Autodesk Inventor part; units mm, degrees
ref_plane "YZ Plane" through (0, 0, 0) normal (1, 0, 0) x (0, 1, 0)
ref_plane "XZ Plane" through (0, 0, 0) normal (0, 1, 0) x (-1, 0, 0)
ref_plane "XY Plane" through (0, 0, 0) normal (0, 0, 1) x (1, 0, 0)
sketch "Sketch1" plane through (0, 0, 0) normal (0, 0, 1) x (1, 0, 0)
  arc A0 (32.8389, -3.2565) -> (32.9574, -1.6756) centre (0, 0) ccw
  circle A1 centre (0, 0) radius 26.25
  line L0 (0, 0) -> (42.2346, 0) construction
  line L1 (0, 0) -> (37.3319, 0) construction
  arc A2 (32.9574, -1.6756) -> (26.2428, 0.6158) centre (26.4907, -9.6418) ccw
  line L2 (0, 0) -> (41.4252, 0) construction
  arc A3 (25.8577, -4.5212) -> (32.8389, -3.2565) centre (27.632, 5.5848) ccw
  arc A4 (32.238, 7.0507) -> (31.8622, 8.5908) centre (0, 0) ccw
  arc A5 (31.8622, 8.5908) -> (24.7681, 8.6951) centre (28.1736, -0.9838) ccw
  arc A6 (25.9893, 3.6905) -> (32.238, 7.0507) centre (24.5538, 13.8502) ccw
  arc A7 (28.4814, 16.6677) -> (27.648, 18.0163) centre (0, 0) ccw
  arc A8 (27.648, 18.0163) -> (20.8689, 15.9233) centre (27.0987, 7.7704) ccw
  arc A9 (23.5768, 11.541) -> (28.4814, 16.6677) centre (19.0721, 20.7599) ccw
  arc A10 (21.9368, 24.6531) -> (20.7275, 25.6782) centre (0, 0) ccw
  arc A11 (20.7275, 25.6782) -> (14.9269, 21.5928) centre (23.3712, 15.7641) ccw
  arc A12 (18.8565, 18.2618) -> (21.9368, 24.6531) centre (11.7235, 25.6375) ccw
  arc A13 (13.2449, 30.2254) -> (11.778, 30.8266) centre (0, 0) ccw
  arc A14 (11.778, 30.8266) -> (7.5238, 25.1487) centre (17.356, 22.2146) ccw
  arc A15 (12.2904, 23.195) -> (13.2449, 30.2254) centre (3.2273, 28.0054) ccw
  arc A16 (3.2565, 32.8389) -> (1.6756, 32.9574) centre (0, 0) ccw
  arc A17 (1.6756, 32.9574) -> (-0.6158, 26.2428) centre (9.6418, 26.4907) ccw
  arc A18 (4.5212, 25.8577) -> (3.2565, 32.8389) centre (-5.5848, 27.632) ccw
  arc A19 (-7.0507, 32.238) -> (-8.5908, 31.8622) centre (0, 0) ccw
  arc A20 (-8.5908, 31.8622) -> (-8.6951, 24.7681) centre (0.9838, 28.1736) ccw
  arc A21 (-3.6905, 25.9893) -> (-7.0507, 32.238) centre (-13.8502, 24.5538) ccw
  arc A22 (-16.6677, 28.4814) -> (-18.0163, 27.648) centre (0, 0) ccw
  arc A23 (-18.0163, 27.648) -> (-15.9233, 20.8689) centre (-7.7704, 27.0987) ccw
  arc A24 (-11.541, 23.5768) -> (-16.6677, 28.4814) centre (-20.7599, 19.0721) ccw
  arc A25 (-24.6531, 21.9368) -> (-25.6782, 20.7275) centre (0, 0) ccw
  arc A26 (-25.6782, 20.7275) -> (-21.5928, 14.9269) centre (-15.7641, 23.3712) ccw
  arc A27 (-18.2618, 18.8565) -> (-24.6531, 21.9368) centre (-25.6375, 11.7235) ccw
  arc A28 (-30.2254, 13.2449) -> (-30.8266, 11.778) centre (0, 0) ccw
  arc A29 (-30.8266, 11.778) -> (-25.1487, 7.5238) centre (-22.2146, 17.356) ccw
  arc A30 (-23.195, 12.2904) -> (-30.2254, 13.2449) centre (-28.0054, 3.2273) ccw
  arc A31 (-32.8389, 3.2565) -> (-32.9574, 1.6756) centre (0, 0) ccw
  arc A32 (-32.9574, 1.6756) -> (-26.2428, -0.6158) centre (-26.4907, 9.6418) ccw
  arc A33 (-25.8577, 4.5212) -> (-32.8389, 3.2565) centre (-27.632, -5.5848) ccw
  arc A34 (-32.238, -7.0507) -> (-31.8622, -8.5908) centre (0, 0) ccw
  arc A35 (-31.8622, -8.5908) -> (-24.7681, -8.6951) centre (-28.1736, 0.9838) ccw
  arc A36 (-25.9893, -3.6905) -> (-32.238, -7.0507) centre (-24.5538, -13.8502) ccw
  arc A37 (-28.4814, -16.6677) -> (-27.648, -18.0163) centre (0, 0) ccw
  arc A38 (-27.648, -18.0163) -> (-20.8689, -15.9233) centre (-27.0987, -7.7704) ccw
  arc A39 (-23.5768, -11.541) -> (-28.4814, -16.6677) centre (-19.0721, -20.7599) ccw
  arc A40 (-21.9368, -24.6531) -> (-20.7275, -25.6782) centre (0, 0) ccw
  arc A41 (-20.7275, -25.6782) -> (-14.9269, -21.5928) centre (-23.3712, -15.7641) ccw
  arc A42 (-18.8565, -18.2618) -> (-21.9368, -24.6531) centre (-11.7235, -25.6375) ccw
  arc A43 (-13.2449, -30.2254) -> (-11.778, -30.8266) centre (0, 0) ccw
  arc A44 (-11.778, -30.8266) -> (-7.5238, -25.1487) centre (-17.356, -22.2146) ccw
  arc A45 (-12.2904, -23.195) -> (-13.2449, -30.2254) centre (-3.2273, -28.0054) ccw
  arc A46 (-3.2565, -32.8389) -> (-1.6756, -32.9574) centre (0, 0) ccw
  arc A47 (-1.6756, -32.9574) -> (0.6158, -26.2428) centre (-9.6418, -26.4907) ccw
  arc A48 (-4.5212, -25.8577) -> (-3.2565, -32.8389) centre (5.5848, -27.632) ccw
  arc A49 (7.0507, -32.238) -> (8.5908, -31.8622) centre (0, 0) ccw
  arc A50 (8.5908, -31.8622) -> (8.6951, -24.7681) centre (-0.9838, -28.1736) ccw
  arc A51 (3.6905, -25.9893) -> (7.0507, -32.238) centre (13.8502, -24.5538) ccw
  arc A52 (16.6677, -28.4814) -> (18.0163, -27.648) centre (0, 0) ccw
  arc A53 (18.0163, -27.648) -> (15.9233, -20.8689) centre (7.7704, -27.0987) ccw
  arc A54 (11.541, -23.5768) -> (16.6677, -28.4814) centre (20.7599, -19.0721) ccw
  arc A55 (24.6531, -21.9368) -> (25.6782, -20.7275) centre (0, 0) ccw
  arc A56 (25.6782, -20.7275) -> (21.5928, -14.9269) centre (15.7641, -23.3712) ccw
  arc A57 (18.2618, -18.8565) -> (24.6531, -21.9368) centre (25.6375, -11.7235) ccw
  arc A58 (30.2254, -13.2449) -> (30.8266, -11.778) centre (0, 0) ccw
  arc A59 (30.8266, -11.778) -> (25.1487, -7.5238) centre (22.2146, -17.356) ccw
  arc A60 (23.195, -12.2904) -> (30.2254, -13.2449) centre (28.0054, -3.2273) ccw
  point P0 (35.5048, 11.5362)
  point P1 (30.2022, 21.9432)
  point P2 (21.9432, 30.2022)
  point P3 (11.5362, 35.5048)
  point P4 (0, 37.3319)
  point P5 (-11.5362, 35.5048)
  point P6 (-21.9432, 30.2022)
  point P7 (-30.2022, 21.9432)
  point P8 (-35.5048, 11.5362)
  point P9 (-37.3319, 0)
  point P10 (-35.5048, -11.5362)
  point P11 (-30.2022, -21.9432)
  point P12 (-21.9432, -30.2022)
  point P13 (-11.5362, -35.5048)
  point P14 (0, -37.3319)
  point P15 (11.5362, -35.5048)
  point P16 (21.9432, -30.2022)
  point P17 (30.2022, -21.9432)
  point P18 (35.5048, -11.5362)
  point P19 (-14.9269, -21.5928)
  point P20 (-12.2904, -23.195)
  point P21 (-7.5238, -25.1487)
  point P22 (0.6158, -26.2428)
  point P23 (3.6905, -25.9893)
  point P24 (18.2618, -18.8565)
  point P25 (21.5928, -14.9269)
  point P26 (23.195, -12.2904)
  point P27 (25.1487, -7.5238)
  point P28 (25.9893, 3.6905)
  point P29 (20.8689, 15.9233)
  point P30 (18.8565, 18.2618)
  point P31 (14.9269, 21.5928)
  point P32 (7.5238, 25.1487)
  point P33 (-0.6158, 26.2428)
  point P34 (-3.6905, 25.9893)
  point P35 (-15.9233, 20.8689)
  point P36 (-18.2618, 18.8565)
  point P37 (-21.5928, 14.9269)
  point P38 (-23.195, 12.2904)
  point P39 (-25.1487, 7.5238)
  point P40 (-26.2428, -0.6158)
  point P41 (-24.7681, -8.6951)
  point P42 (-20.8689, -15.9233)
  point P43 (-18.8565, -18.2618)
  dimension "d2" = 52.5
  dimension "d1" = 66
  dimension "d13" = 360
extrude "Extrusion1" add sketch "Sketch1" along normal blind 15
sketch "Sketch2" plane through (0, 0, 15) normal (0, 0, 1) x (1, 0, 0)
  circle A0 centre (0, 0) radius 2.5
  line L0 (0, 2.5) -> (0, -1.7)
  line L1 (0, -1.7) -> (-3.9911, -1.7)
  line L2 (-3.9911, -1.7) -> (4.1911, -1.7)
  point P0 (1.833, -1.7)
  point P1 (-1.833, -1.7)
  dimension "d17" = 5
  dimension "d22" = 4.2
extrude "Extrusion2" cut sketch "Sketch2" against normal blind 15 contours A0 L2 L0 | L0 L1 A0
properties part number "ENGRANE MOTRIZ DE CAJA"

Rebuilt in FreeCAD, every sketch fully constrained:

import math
import FreeCAD as App
import Part
import Sketcher

doc = App.newDocument("Part")
body = doc.addObject("PartDesign::Body", "Body")

sketch1 = doc.addObject("Sketcher::SketchObject", "Sketch")
body.addObject(sketch1)
sketch1.AttachmentSupport = (doc.XY_Plane, [""])
sketch1.MapMode = "FlatFace"
sketch1.addGeometry([
    Part.ArcOfCircle(Part.Circle(App.Vector(27.632, 5.5848, 0), App.Vector(0, 0, 1), 10.260574), math.radians(-99.957873), math.radians(-59.504925)),
    Part.ArcOfCircle(Part.Circle(App.Vector(0.007724, -0.000672, 0), App.Vector(0, 0, 1), 32.992219), math.radians(-5.663435), math.radians(-2.910006)),
    Part.ArcOfCircle(Part.Circle(App.Vector(26.4907, -9.6418, 0), App.Vector(0, 0, 1), 10.260534), math.radians(50.93144), math.radians(91.384423)),
    Part.ArcOfCircle(Part.Circle(App.Vector(0, 0, 0), App.Vector(0, 0, 1), 26.25), math.radians(1.344227), math.radians(8.08201)),
    Part.ArcOfCircle(Part.Circle(App.Vector(24.5538, 13.8502, 0), App.Vector(0, 0, 1), 10.260612), math.radians(-81.957713), math.radians(-41.504576)),
    Part.ArcOfCircle(Part.Circle(App.Vector(-0.015844, -0.003665, 0), App.Vector(0, 0, 1), 33.016277), math.radians(12.337115), math.radians(15.088454)),
    Part.ArcOfCircle(Part.Circle(App.Vector(28.1736, -0.9838, 0), App.Vector(0, 0, 1), 10.260543), math.radians(68.930897), math.radians(109.384311)),
    Part.ArcOfCircle(Part.Circle(App.Vector(0, 0, 0), App.Vector(0, 0, 1), 26.25), math.radians(19.344156), math.radians(26.082055)),
    Part.ArcOfCircle(Part.Circle(App.Vector(19.0721, 20.7599, 0), App.Vector(0, 0, 1), 10.260626), math.radians(-63.958132), math.radians(-23.504711)),
    Part.ArcOfCircle(Part.Circle(App.Vector(0.076291, 0.045886, 0), App.Vector(0, 0, 1), 32.911015), math.radians(30.334886), math.radians(33.095105)),
    Part.ArcOfCircle(Part.Circle(App.Vector(27.0987, 7.7704, 0), App.Vector(0, 0, 1), 10.260614), math.radians(86.931214), math.radians(127.384196)),
    Part.ArcOfCircle(Part.Circle(App.Vector(0, 0, 0), App.Vector(0, 0, 1), 26.25), math.radians(37.344203), math.radians(44.0821)),
    Part.ArcOfCircle(Part.Circle(App.Vector(11.7235, 25.6375, 0), App.Vector(0, 0, 1), 10.260635), math.radians(-45.958348), math.radians(-5.505397)),
    Part.ArcOfCircle(Part.Circle(App.Vector(-0.011674, -0.013442, 0), App.Vector(0, 0, 1), 33.01778), math.radians(48.337072), math.radians(51.088341)),
    Part.ArcOfCircle(Part.Circle(App.Vector(23.3712, 15.7641, 0), App.Vector(0, 0, 1), 10.260533), math.radians(104.931093), math.radians(145.384521)),
    Part.ArcOfCircle(Part.Circle(App.Vector(0, 0, 0), App.Vector(0, 0, 1), 26.25), math.radians(55.344259), math.radians(62.0821)),
    Part.ArcOfCircle(Part.Circle(App.Vector(3.2273, 28.0054, 0), App.Vector(0, 0, 1), 10.260591), math.radians(-27.957915), math.radians(12.495375)),
    Part.ArcOfCircle(Part.Circle(App.Vector(0.016681, 0.039347, 0), App.Vector(0, 0, 1), 32.957299), math.radians(66.335869), math.radians(69.092189)),
    Part.ArcOfCircle(Part.Circle(App.Vector(17.356, 22.2146, 0), App.Vector(0, 0, 1), 10.260635), math.radians(122.931166), math.radians(163.383979)),
    Part.ArcOfCircle(Part.Circle(App.Vector(0, 0, 0), App.Vector(0, 0, 1), 26.25), math.radians(73.344262), math.radians(80.082134)),
    Part.ArcOfCircle(Part.Circle(App.Vector(-5.5848, 27.632, 0), App.Vector(0, 0, 1), 10.260574), math.radians(-9.957873), math.radians(30.495075)),
    Part.ArcOfCircle(Part.Circle(App.Vector(0.000672, 0.007724, 0), App.Vector(0, 0, 1), 32.992219), math.radians(84.336565), math.radians(87.089994)),
    Part.ArcOfCircle(Part.Circle(App.Vector(9.6418, 26.4907, 0), App.Vector(0, 0, 1), 10.260534), math.radians(140.93144), math.radians(181.384423)),
    Part.ArcOfCircle(Part.Circle(App.Vector(0, 0, 0), App.Vector(0, 0, 1), 26.25), math.radians(91.344227), math.radians(98.08201)),
    Part.ArcOfCircle(Part.Circle(App.Vector(-13.8502, 24.5538, 0), App.Vector(0, 0, 1), 10.260612), math.radians(8.042287), math.radians(48.495424)),
    Part.ArcOfCircle(Part.Circle(App.Vector(0.003665, -0.015844, 0), App.Vector(0, 0, 1), 33.016277), math.radians(102.337115), math.radians(105.088454)),
    Part.ArcOfCircle(Part.Circle(App.Vector(0.9838, 28.1736, 0), App.Vector(0, 0, 1), 10.260543), math.radians(158.930897), math.radians(199.384311)),
    Part.ArcOfCircle(Part.Circle(App.Vector(0, 0, 0), App.Vector(0, 0, 1), 26.25), math.radians(109.344156), math.radians(116.082055)),
    Part.ArcOfCircle(Part.Circle(App.Vector(-20.7599, 19.0721, 0), App.Vector(0, 0, 1), 10.260626), math.radians(26.041868), math.radians(66.495289)),
    Part.ArcOfCircle(Part.Circle(App.Vector(-0.045886, 0.076291, 0), App.Vector(0, 0, 1), 32.911015), math.radians(120.334886), math.radians(123.095105)),
    Part.ArcOfCircle(Part.Circle(App.Vector(-7.7704, 27.0987, 0), App.Vector(0, 0, 1), 10.260614), math.radians(176.931214), math.radians(217.384196)),
    Part.ArcOfCircle(Part.Circle(App.Vector(0, 0, 0), App.Vector(0, 0, 1), 26.25), math.radians(127.344203), math.radians(134.0821)),
    Part.ArcOfCircle(Part.Circle(App.Vector(-25.6375, 11.7235, 0), App.Vector(0, 0, 1), 10.260635), math.radians(44.041652), math.radians(84.494603)),
    Part.ArcOfCircle(Part.Circle(App.Vector(0.013442, -0.011674, 0), App.Vector(0, 0, 1), 33.01778), math.radians(138.337072), math.radians(141.088341)),
    Part.ArcOfCircle(Part.Circle(App.Vector(-15.7641, 23.3712, 0), App.Vector(0, 0, 1), 10.260533), math.radians(-165.068907), math.radians(-124.615479)),
    Part.ArcOfCircle(Part.Circle(App.Vector(0, 0, 0), App.Vector(0, 0, 1), 26.25), math.radians(145.344259), math.radians(152.0821)),
    Part.ArcOfCircle(Part.Circle(App.Vector(-28.0054, 3.2273, 0), App.Vector(0, 0, 1), 10.260591), math.radians(62.042085), math.radians(102.495375)),
    Part.ArcOfCircle(Part.Circle(App.Vector(-0.039347, 0.016681, 0), App.Vector(0, 0, 1), 32.957299), math.radians(156.335869), math.radians(159.092189)),
    Part.ArcOfCircle(Part.Circle(App.Vector(-22.2146, 17.356, 0), App.Vector(0, 0, 1), 10.260635), math.radians(-147.068834), math.radians(-106.616021)),
    Part.ArcOfCircle(Part.Circle(App.Vector(0, 0, 0), App.Vector(0, 0, 1), 26.25), math.radians(163.344262), math.radians(170.082134)),
    Part.ArcOfCircle(Part.Circle(App.Vector(-27.632, -5.5848, 0), App.Vector(0, 0, 1), 10.260574), math.radians(80.042127), math.radians(120.495075)),
    Part.ArcOfCircle(Part.Circle(App.Vector(-0.007724, 0.000672, 0), App.Vector(0, 0, 1), 32.992219), math.radians(174.336565), math.radians(177.089994)),
    Part.ArcOfCircle(Part.Circle(App.Vector(-26.4907, 9.6418, 0), App.Vector(0, 0, 1), 10.260534), math.radians(-129.06856), math.radians(-88.615577)),
    Part.ArcOfCircle(Part.Circle(App.Vector(0, 0, 0), App.Vector(0, 0, 1), 26.25), math.radians(-178.655773), math.radians(-171.91799)),
    Part.ArcOfCircle(Part.Circle(App.Vector(-24.5538, -13.8502, 0), App.Vector(0, 0, 1), 10.260612), math.radians(98.042287), math.radians(138.495424)),
    Part.ArcOfCircle(Part.Circle(App.Vector(0.015844, 0.003665, 0), App.Vector(0, 0, 1), 33.016277), math.radians(-167.662885), math.radians(-164.911546)),
    Part.ArcOfCircle(Part.Circle(App.Vector(-28.1736, 0.9838, 0), App.Vector(0, 0, 1), 10.260543), math.radians(-111.069103), math.radians(-70.615689)),
    Part.ArcOfCircle(Part.Circle(App.Vector(0, 0, 0), App.Vector(0, 0, 1), 26.25), math.radians(-160.655844), math.radians(-153.917945)),
    Part.ArcOfCircle(Part.Circle(App.Vector(-19.0721, -20.7599, 0), App.Vector(0, 0, 1), 10.260626), math.radians(116.041868), math.radians(156.495289)),
    Part.ArcOfCircle(Part.Circle(App.Vector(-0.076291, -0.045886, 0), App.Vector(0, 0, 1), 32.911015), math.radians(-149.665114), math.radians(-146.904895)),
    Part.ArcOfCircle(Part.Circle(App.Vector(-27.0987, -7.7704, 0), App.Vector(0, 0, 1), 10.260614), math.radians(-93.068786), math.radians(-52.615804)),
    Part.ArcOfCircle(Part.Circle(App.Vector(0, 0, 0), App.Vector(0, 0, 1), 26.25), math.radians(-142.655797), math.radians(-135.9179)),
    Part.ArcOfCircle(Part.Circle(App.Vector(-11.7235, -25.6375, 0), App.Vector(0, 0, 1), 10.260635), math.radians(134.041652), math.radians(174.494603)),
    Part.ArcOfCircle(Part.Circle(App.Vector(0.011674, 0.013442, 0), App.Vector(0, 0, 1), 33.01778), math.radians(-131.662928), math.radians(-128.911659)),
    Part.ArcOfCircle(Part.Circle(App.Vector(-23.3712, -15.7641, 0), App.Vector(0, 0, 1), 10.260533), math.radians(-75.068907), math.radians(-34.615479)),
    Part.ArcOfCircle(Part.Circle(App.Vector(0, 0, 0), App.Vector(0, 0, 1), 26.25), math.radians(-124.655741), math.radians(-117.9179)),
    Part.ArcOfCircle(Part.Circle(App.Vector(-3.2273, -28.0054, 0), App.Vector(0, 0, 1), 10.260591), math.radians(152.042085), math.radians(192.495375)),
    Part.ArcOfCircle(Part.Circle(App.Vector(-0.016681, -0.039347, 0), App.Vector(0, 0, 1), 32.957299), math.radians(-113.664131), math.radians(-110.907811)),
    Part.ArcOfCircle(Part.Circle(App.Vector(-17.356, -22.2146, 0), App.Vector(0, 0, 1), 10.260635), math.radians(-57.068834), math.radians(-16.616021)),
    Part.ArcOfCircle(Part.Circle(App.Vector(0, 0, 0), App.Vector(0, 0, 1), 26.25), math.radians(-106.655738), math.radians(-99.917866)),
    Part.ArcOfCircle(Part.Circle(App.Vector(5.5848, -27.632, 0), App.Vector(0, 0, 1), 10.260574), math.radians(170.042127), math.radians(210.495075)),
    Part.ArcOfCircle(Part.Circle(App.Vector(-0.000672, -0.007724, 0), App.Vector(0, 0, 1), 32.992219), math.radians(-95.663435), math.radians(-92.910006)),
    Part.ArcOfCircle(Part.Circle(App.Vector(-9.6418, -26.4907, 0), App.Vector(0, 0, 1), 10.260534), math.radians(-39.06856), math.radians(1.384423)),
    Part.ArcOfCircle(Part.Circle(App.Vector(0, 0, 0), App.Vector(0, 0, 1), 26.25), math.radians(-88.655773), math.radians(-81.91799)),
    Part.ArcOfCircle(Part.Circle(App.Vector(13.8502, -24.5538, 0), App.Vector(0, 0, 1), 10.260612), math.radians(-171.957713), math.radians(-131.504576)),
    Part.ArcOfCircle(Part.Circle(App.Vector(-0.003665, 0.015844, 0), App.Vector(0, 0, 1), 33.016277), math.radians(-77.662885), math.radians(-74.911546)),
    Part.ArcOfCircle(Part.Circle(App.Vector(-0.9838, -28.1736, 0), App.Vector(0, 0, 1), 10.260543), math.radians(-21.069103), math.radians(19.384311)),
    Part.ArcOfCircle(Part.Circle(App.Vector(0, 0, 0), App.Vector(0, 0, 1), 26.25), math.radians(-70.655844), math.radians(-63.917945)),
    Part.ArcOfCircle(Part.Circle(App.Vector(20.7599, -19.0721, 0), App.Vector(0, 0, 1), 10.260626), math.radians(-153.958132), math.radians(-113.504711)),
    Part.ArcOfCircle(Part.Circle(App.Vector(0.045886, -0.076291, 0), App.Vector(0, 0, 1), 32.911015), math.radians(-59.665114), math.radians(-56.904895)),
    Part.ArcOfCircle(Part.Circle(App.Vector(7.7704, -27.0987, 0), App.Vector(0, 0, 1), 10.260614), math.radians(-3.068786), math.radians(37.384196)),
    Part.ArcOfCircle(Part.Circle(App.Vector(0, 0, 0), App.Vector(0, 0, 1), 26.25), math.radians(-52.655797), math.radians(-45.9179)),
    Part.ArcOfCircle(Part.Circle(App.Vector(25.6375, -11.7235, 0), App.Vector(0, 0, 1), 10.260635), math.radians(-135.958348), math.radians(-95.505397)),
    Part.ArcOfCircle(Part.Circle(App.Vector(-0.013442, 0.011674, 0), App.Vector(0, 0, 1), 33.01778), math.radians(-41.662928), math.radians(-38.911659)),
    Part.ArcOfCircle(Part.Circle(App.Vector(15.7641, -23.3712, 0), App.Vector(0, 0, 1), 10.260533), math.radians(14.931093), math.radians(55.384521)),
    Part.ArcOfCircle(Part.Circle(App.Vector(0, 0, 0), App.Vector(0, 0, 1), 26.25), math.radians(-34.655741), math.radians(-27.9179)),
    Part.ArcOfCircle(Part.Circle(App.Vector(28.0054, -3.2273, 0), App.Vector(0, 0, 1), 10.260591), math.radians(-117.957915), math.radians(-77.504625)),
    Part.ArcOfCircle(Part.Circle(App.Vector(0.039347, -0.016681, 0), App.Vector(0, 0, 1), 32.957299), math.radians(-23.664131), math.radians(-20.907811)),
    Part.ArcOfCircle(Part.Circle(App.Vector(22.2146, -17.356, 0), App.Vector(0, 0, 1), 10.260635), math.radians(32.931166), math.radians(73.383979)),
    Part.ArcOfCircle(Part.Circle(App.Vector(0, 0, 0), App.Vector(0, 0, 1), 26.25), math.radians(-16.655738), math.radians(-9.917866)),
], False)
sketch1.addConstraint([
    Sketcher.Constraint("Coincident", 0, 2, 1, 1),
    Sketcher.Constraint("Coincident", 1, 2, 2, 1),
    Sketcher.Constraint("Coincident", 2, 2, 3, 1),
    Sketcher.Constraint("Coincident", 3, 2, 4, 1),
    Sketcher.Constraint("Coincident", 4, 2, 5, 1),
    Sketcher.Constraint("Coincident", 5, 2, 6, 1),
    Sketcher.Constraint("Coincident", 6, 2, 7, 1),
    Sketcher.Constraint("Coincident", 7, 2, 8, 1),
    Sketcher.Constraint("Coincident", 8, 2, 9, 1),
    Sketcher.Constraint("Coincident", 9, 2, 10, 1),
    Sketcher.Constraint("Coincident", 10, 2, 11, 1),
    Sketcher.Constraint("Coincident", 11, 2, 12, 1),
    Sketcher.Constraint("Coincident", 12, 2, 13, 1),
    Sketcher.Constraint("Coincident", 13, 2, 14, 1),
    Sketcher.Constraint("Coincident", 14, 2, 15, 1),
    Sketcher.Constraint("Coincident", 15, 2, 16, 1),
    Sketcher.Constraint("Coincident", 16, 2, 17, 1),
    Sketcher.Constraint("Coincident", 17, 2, 18, 1),
    Sketcher.Constraint("Coincident", 18, 2, 19, 1),
    Sketcher.Constraint("Coincident", 19, 2, 20, 1),
    Sketcher.Constraint("Coincident", 20, 2, 21, 1),
    Sketcher.Constraint("Coincident", 21, 2, 22, 1),
    Sketcher.Constraint("Coincident", 22, 2, 23, 1),
    Sketcher.Constraint("Coincident", 23, 2, 24, 1),
    Sketcher.Constraint("Coincident", 24, 2, 25, 1),
    Sketcher.Constraint("Coincident", 25, 2, 26, 1),
    Sketcher.Constraint("Coincident", 26, 2, 27, 1),
    Sketcher.Constraint("Coincident", 27, 2, 28, 1),
    Sketcher.Constraint("Coincident", 28, 2, 29, 1),
    Sketcher.Constraint("Coincident", 29, 2, 30, 1),
    Sketcher.Constraint("Coincident", 30, 2, 31, 1),
    Sketcher.Constraint("Coincident", 31, 2, 32, 1),
    Sketcher.Constraint("Coincident", 32, 2, 33, 1),
    Sketcher.Constraint("Coincident", 33, 2, 34, 1),
    Sketcher.Constraint("Coincident", 34, 2, 35, 1),
    Sketcher.Constraint("Coincident", 35, 2, 36, 1),
    Sketcher.Constraint("Coincident", 36, 2, 37, 1),
    Sketcher.Constraint("Coincident", 37, 2, 38, 1),
    Sketcher.Constraint("Coincident", 38, 2, 39, 1),
    Sketcher.Constraint("Coincident", 39, 2, 40, 1),
    Sketcher.Constraint("Coincident", 40, 2, 41, 1),
    Sketcher.Constraint("Coincident", 41, 2, 42, 1),
    Sketcher.Constraint("Coincident", 42, 2, 43, 1),
    Sketcher.Constraint("Coincident", 43, 2, 44, 1),
    Sketcher.Constraint("Coincident", 44, 2, 45, 1),
    Sketcher.Constraint("Coincident", 45, 2, 46, 1),
    Sketcher.Constraint("Coincident", 46, 2, 47, 1),
    Sketcher.Constraint("Coincident", 47, 2, 48, 1),
    Sketcher.Constraint("Coincident", 48, 2, 49, 1),
    Sketcher.Constraint("Coincident", 49, 2, 50, 1),
    Sketcher.Constraint("Coincident", 50, 2, 51, 1),
    Sketcher.Constraint("Coincident", 51, 2, 52, 1),
    Sketcher.Constraint("Coincident", 52, 2, 53, 1),
    Sketcher.Constraint("Coincident", 53, 2, 54, 1),
    Sketcher.Constraint("Coincident", 54, 2, 55, 1),
    Sketcher.Constraint("Coincident", 55, 2, 56, 1),
    Sketcher.Constraint("Coincident", 56, 2, 57, 1),
    Sketcher.Constraint("Coincident", 57, 2, 58, 1),
    Sketcher.Constraint("Coincident", 58, 2, 59, 1),
    Sketcher.Constraint("Coincident", 59, 2, 60, 1),
    Sketcher.Constraint("Coincident", 60, 2, 61, 1),
    Sketcher.Constraint("Coincident", 61, 2, 62, 1),
    Sketcher.Constraint("Coincident", 62, 2, 63, 1),
    Sketcher.Constraint("Coincident", 63, 2, 64, 1),
    Sketcher.Constraint("Coincident", 64, 2, 65, 1),
    Sketcher.Constraint("Coincident", 65, 2, 66, 1),
    Sketcher.Constraint("Coincident", 66, 2, 67, 1),
    Sketcher.Constraint("Coincident", 67, 2, 68, 1),
    Sketcher.Constraint("Coincident", 68, 2, 69, 1),
    Sketcher.Constraint("Coincident", 69, 2, 70, 1),
    Sketcher.Constraint("Coincident", 70, 2, 71, 1),
    Sketcher.Constraint("Coincident", 71, 2, 72, 1),
    Sketcher.Constraint("Coincident", 72, 2, 73, 1),
    Sketcher.Constraint("Coincident", 73, 2, 74, 1),
    Sketcher.Constraint("Coincident", 74, 2, 75, 1),
    Sketcher.Constraint("Coincident", 75, 2, 76, 1),
    Sketcher.Constraint("Coincident", 76, 2, 77, 1),
    Sketcher.Constraint("Coincident", 77, 2, 78, 1),
    Sketcher.Constraint("Coincident", 78, 2, 79, 1),
    Sketcher.Constraint("Coincident", 79, 2, 0, 1),
    Sketcher.Constraint("Coincident", 3, 3, -1, 1),
    Sketcher.Constraint("Coincident", 7, 3, -1, 1),
    Sketcher.Constraint("Coincident", 11, 3, -1, 1),
    Sketcher.Constraint("Coincident", 15, 3, -1, 1),
    Sketcher.Constraint("Coincident", 19, 3, -1, 1),
    Sketcher.Constraint("Coincident", 23, 3, -1, 1),
    Sketcher.Constraint("Coincident", 27, 3, -1, 1),
    Sketcher.Constraint("Coincident", 31, 3, -1, 1),
    Sketcher.Constraint("Coincident", 35, 3, -1, 1),
    Sketcher.Constraint("Coincident", 39, 3, -1, 1),
    Sketcher.Constraint("Coincident", 43, 3, -1, 1),
    Sketcher.Constraint("Coincident", 47, 3, -1, 1),
    Sketcher.Constraint("Coincident", 51, 3, -1, 1),
    Sketcher.Constraint("Coincident", 55, 3, -1, 1),
    Sketcher.Constraint("Coincident", 59, 3, -1, 1),
    Sketcher.Constraint("Coincident", 63, 3, -1, 1),
    Sketcher.Constraint("Coincident", 67, 3, -1, 1),
    Sketcher.Constraint("Coincident", 71, 3, -1, 1),
    Sketcher.Constraint("Coincident", 75, 3, -1, 1),
    Sketcher.Constraint("Coincident", 79, 3, -1, 1),
    Sketcher.Constraint("Equal", 0, 2),
    Sketcher.Constraint("Equal", 2, 4),
    Sketcher.Constraint("Equal", 4, 6),
    Sketcher.Constraint("Equal", 3, 7),
    Sketcher.Constraint("Equal", 6, 8),
    Sketcher.Constraint("Equal", 8, 10),
    Sketcher.Constraint("Equal", 7, 11),
    Sketcher.Constraint("Equal", 10, 12),
    Sketcher.Constraint("Equal", 12, 14),
    Sketcher.Constraint("Equal", 11, 15),
    Sketcher.Constraint("Equal", 14, 16),
    Sketcher.Constraint("Equal", 16, 18),
    Sketcher.Constraint("Equal", 15, 19),
    Sketcher.Constraint("Equal", 18, 20),
    Sketcher.Constraint("Equal", 1, 21),
    Sketcher.Constraint("Equal", 20, 22),
    Sketcher.Constraint("Equal", 19, 23),
    Sketcher.Constraint("Equal", 22, 24),
    Sketcher.Constraint("Equal", 5, 25),
    Sketcher.Constraint("Equal", 24, 26),
    Sketcher.Constraint("Equal", 23, 27),
    Sketcher.Constraint("Equal", 26, 28),
    Sketcher.Constraint("Equal", 9, 29),
    Sketcher.Constraint("Equal", 28, 30),
    Sketcher.Constraint("Equal", 27, 31),
    Sketcher.Constraint("Equal", 30, 32),
    Sketcher.Constraint("Equal", 13, 33),
    Sketcher.Constraint("Equal", 32, 34),
    Sketcher.Constraint("Equal", 31, 35),
    Sketcher.Constraint("Equal", 34, 36),
    Sketcher.Constraint("Equal", 17, 37),
    Sketcher.Constraint("Equal", 36, 38),
    Sketcher.Constraint("Equal", 35, 39),
    Sketcher.Constraint("Equal", 38, 40),
    Sketcher.Constraint("Equal", 21, 41),
    Sketcher.Constraint("Equal", 40, 42),
    Sketcher.Constraint("Equal", 39, 43),
    Sketcher.Constraint("Equal", 42, 44),
    Sketcher.Constraint("Equal", 25, 45),
    Sketcher.Constraint("Equal", 44, 46),
    Sketcher.Constraint("Equal", 43, 47),
    Sketcher.Constraint("Equal", 46, 48),
    Sketcher.Constraint("Equal", 29, 49),
    Sketcher.Constraint("Equal", 48, 50),
    Sketcher.Constraint("Equal", 47, 51),
    Sketcher.Constraint("Equal", 50, 52),
    Sketcher.Constraint("Equal", 33, 53),
    Sketcher.Constraint("Equal", 52, 54),
    Sketcher.Constraint("Equal", 51, 55),
    Sketcher.Constraint("Equal", 54, 56),
    Sketcher.Constraint("Equal", 37, 57),
    Sketcher.Constraint("Equal", 56, 58),
    Sketcher.Constraint("Equal", 55, 59),
    Sketcher.Constraint("Equal", 58, 60),
    Sketcher.Constraint("Equal", 41, 61),
    Sketcher.Constraint("Equal", 60, 62),
    Sketcher.Constraint("Equal", 59, 63),
    Sketcher.Constraint("Equal", 62, 64),
    Sketcher.Constraint("Equal", 45, 65),
    Sketcher.Constraint("Equal", 64, 66),
    Sketcher.Constraint("Equal", 63, 67),
    Sketcher.Constraint("Equal", 66, 68),
    Sketcher.Constraint("Equal", 49, 69),
    Sketcher.Constraint("Equal", 68, 70),
    Sketcher.Constraint("Equal", 67, 71),
    Sketcher.Constraint("Equal", 70, 72),
    Sketcher.Constraint("Equal", 53, 73),
    Sketcher.Constraint("Equal", 72, 74),
    Sketcher.Constraint("Equal", 71, 75),
    Sketcher.Constraint("Equal", 74, 76),
    Sketcher.Constraint("Equal", 57, 77),
    Sketcher.Constraint("Equal", 76, 78),
    Sketcher.Constraint("Equal", 75, 79),
    Sketcher.Constraint("Symmetric", 0, 3, 40, 3, -1, 1),
    Sketcher.Constraint("Symmetric", 1, 3, 41, 3, -1, 1),
    Sketcher.Constraint("Symmetric", 2, 3, 42, 3, -1, 1),
    Sketcher.Constraint("Symmetric", 4, 3, 44, 3, -1, 1),
    Sketcher.Constraint("Symmetric", 5, 3, 45, 3, -1, 1),
    Sketcher.Constraint("Symmetric", 6, 3, 46, 3, -1, 1),
    Sketcher.Constraint("Symmetric", 8, 3, 48, 3, -1, 1),
    Sketcher.Constraint("Symmetric", 9, 3, 49, 3, -1, 1),
    Sketcher.Constraint("Symmetric", 10, 3, 50, 3, -1, 1),
    Sketcher.Constraint("Symmetric", 12, 3, 52, 3, -1, 1),
    Sketcher.Constraint("Symmetric", 13, 3, 53, 3, -1, 1),
    Sketcher.Constraint("Symmetric", 14, 3, 54, 3, -1, 1),
    Sketcher.Constraint("Symmetric", 16, 3, 56, 3, -1, 1),
    Sketcher.Constraint("Symmetric", 17, 3, 57, 3, -1, 1),
    Sketcher.Constraint("Symmetric", 18, 3, 58, 3, -1, 1),
    Sketcher.Constraint("Symmetric", 20, 3, 60, 3, -1, 1),
    Sketcher.Constraint("Symmetric", 21, 3, 61, 3, -1, 1),
    Sketcher.Constraint("Symmetric", 22, 3, 62, 3, -1, 1),
    Sketcher.Constraint("Symmetric", 24, 3, 64, 3, -1, 1),
    Sketcher.Constraint("Symmetric", 25, 3, 65, 3, -1, 1),
    Sketcher.Constraint("Symmetric", 26, 3, 66, 3, -1, 1),
    Sketcher.Constraint("Symmetric", 28, 3, 68, 3, -1, 1),
    Sketcher.Constraint("Symmetric", 29, 3, 69, 3, -1, 1),
    Sketcher.Constraint("Symmetric", 30, 3, 70, 3, -1, 1),
    Sketcher.Constraint("Symmetric", 32, 3, 72, 3, -1, 1),
    Sketcher.Constraint("Symmetric", 33, 3, 73, 3, -1, 1),
    Sketcher.Constraint("Symmetric", 34, 3, 74, 3, -1, 1),
    Sketcher.Constraint("Symmetric", 36, 3, 76, 3, -1, 1),
    Sketcher.Constraint("Symmetric", 37, 3, 77, 3, -1, 1),
    Sketcher.Constraint("Symmetric", 38, 3, 78, 3, -1, 1),
    Sketcher.Constraint("Radius", 3, 26.25),
    Sketcher.Constraint("Radius", 9, 32.911),
    Sketcher.Constraint("Radius", 0, 10.2606),
    Sketcher.Constraint("Radius", 1, 32.9922),
    Sketcher.Constraint("Radius", 5, 33.0163),
    Sketcher.Constraint("Radius", 13, 33.0178),
    Sketcher.Constraint("Radius", 17, 32.9573),
    Sketcher.Constraint("DistanceY", -1, 1, 8, 3, 20.76),
    Sketcher.Constraint("DistanceX", 28, 3, -1, 1, 20.76),
    Sketcher.Constraint("DistanceX", -1, 1, 0, 3, 27.632),
    Sketcher.Constraint("DistanceX", -1, 1, 8, 3, 19.072),
    Sketcher.Constraint("DistanceY", -1, 1, 9, 3, 0.046),
    Sketcher.Constraint("DistanceY", -1, 1, 14, 3, 15.764),
    Sketcher.Constraint("DistanceX", -1, 1, 18, 3, 17.356),
    Sketcher.Constraint("DistanceY", -1, 1, 20, 3, 27.632),
    Sketcher.Constraint("DistanceY", -1, 1, 28, 3, 19.072),
    Sketcher.Constraint("DistanceX", 29, 3, -1, 1, 0.046),
    Sketcher.Constraint("DistanceX", 34, 3, -1, 1, 15.764),
    Sketcher.Constraint("DistanceY", -1, 1, 38, 3, 17.356),
    Sketcher.Constraint("DistanceX", -1, 1, 4, 2, 32.238),
    Sketcher.Constraint("DistanceX", -1, 1, 6, 2, 24.768),
    Sketcher.Constraint("DistanceX", -1, 1, 9, 2, 27.648),
    Sketcher.Constraint("DistanceX", -1, 1, 10, 2, 20.869),
    Sketcher.Constraint("DistanceY", -1, 1, 12, 2, 24.653),
    Sketcher.Constraint("DistanceX", -1, 1, 14, 2, 14.927),
    Sketcher.Constraint("DistanceY", -1, 1, 15, 2, 23.195),
    Sketcher.Constraint("DistanceX", -1, 1, 17, 2, 11.778),
    Sketcher.Constraint("DistanceY", -1, 1, 24, 2, 32.238),
    Sketcher.Constraint("DistanceX", 26, 2, -1, 1, 8.695),
    Sketcher.Constraint("DistanceY", -1, 1, 29, 2, 27.648),
    Sketcher.Constraint("DistanceY", -1, 1, 30, 2, 20.869),
    Sketcher.Constraint("DistanceX", 32, 2, -1, 1, 24.653),
    Sketcher.Constraint("DistanceY", -1, 1, 34, 2, 14.927),
    Sketcher.Constraint("DistanceX", 35, 2, -1, 1, 23.195),
    Sketcher.Constraint("DistanceY", -1, 1, 37, 2, 11.778),
    Sketcher.Constraint("DistanceY", -1, 1, 0, 3, 5.5848),
    Sketcher.Constraint("DistanceX", -1, 1, 1, 3, 0.0077),
    Sketcher.Constraint("DistanceY", 1, 3, -1, 1, 0.0007),
    Sketcher.Constraint("DistanceX", -1, 1, 2, 3, 26.4907),
    Sketcher.Constraint("DistanceY", 2, 3, -1, 1, 9.6418),
    Sketcher.Constraint("DistanceX", -1, 1, 4, 3, 24.5538),
    Sketcher.Constraint("DistanceY", -1, 1, 4, 3, 13.8502),
    Sketcher.Constraint("DistanceX", 5, 3, -1, 1, 0.0158),
    Sketcher.Constraint("DistanceX", -1, 1, 6, 3, 28.1736),
    Sketcher.Constraint("DistanceX", -1, 1, 9, 3, 0.0763),
    Sketcher.Constraint("DistanceX", -1, 1, 12, 3, 11.7235),
    Sketcher.Constraint("DistanceY", -1, 1, 12, 3, 25.6375),
    Sketcher.Constraint("DistanceX", 13, 3, -1, 1, 0.0117),
    Sketcher.Constraint("DistanceX", -1, 1, 16, 3, 3.2273),
    Sketcher.Constraint("DistanceX", -1, 1, 17, 3, 0.0167),
    Sketcher.Constraint("DistanceY", -1, 1, 17, 3, 0.0393),
    Sketcher.Constraint("DistanceX", 20, 3, -1, 1, 5.5848),
    Sketcher.Constraint("DistanceX", -1, 1, 21, 3, 0.0007),
    Sketcher.Constraint("DistanceY", -1, 1, 21, 3, 0.0077),
    Sketcher.Constraint("DistanceX", -1, 1, 22, 3, 9.6418),
    Sketcher.Constraint("DistanceY", -1, 1, 22, 3, 26.4907),
    Sketcher.Constraint("DistanceX", 24, 3, -1, 1, 13.8502),
    Sketcher.Constraint("DistanceY", -1, 1, 24, 3, 24.5538),
    Sketcher.Constraint("DistanceX", -1, 1, 25, 3, 0.0037),
    Sketcher.Constraint("DistanceX", -1, 1, 26, 3, 0.9838),
    Sketcher.Constraint("DistanceY", -1, 1, 29, 3, 0.0763),
    Sketcher.Constraint("DistanceX", 32, 3, -1, 1, 25.6375),
    Sketcher.Constraint("DistanceY", -1, 1, 32, 3, 11.7235),
    Sketcher.Constraint("DistanceX", -1, 1, 33, 3, 0.0134),
    Sketcher.Constraint("DistanceX", 36, 3, -1, 1, 28.0054),
    Sketcher.Constraint("DistanceX", 37, 3, -1, 1, 0.0393),
    Sketcher.Constraint("DistanceY", -1, 1, 37, 3, 0.0167),
])
pad1 = doc.addObject("PartDesign::Pad", "Pad")
body.addObject(pad1)
pad1.Profile = sketch1
pad1.Length = 15

sketch2 = doc.addObject("Sketcher::SketchObject", "Sketch001")
body.addObject(sketch2)
sketch2.AttachmentSupport = (doc.XY_Plane, [""])
sketch2.MapMode = "FlatFace"
sketch2.AttachmentOffset = App.Placement(App.Vector(0, 0, 15), App.Rotation())
sketch2.addGeometry([
    Part.ArcOfCircle(Part.Circle(App.Vector(0, 0, 0), App.Vector(0, 0, 1), 2.5), math.radians(-43), math.radians(223)),
    Part.LineSegment(App.Vector(-1.8, -1.7, 0), App.Vector(1.8, -1.7, 0)),
], False)
sketch2.addConstraint([
    Sketcher.Constraint("Coincident", 0, 1, 1, 2),
    Sketcher.Constraint("Coincident", 1, 1, 0, 2),
    Sketcher.Constraint("Horizontal", 1),
    Sketcher.Constraint("Coincident", 0, 3, -1, 1),
    Sketcher.Constraint("Radius", 0, 2.5),
    Sketcher.Constraint("DistanceY", 0, 1, -1, 1, 1.7),
])
pocket1 = doc.addObject("PartDesign::Pocket", "Pocket")
body.addObject(pocket1)
pocket1.Profile = sketch2
pocket1.Length = 15

doc.recompute()
